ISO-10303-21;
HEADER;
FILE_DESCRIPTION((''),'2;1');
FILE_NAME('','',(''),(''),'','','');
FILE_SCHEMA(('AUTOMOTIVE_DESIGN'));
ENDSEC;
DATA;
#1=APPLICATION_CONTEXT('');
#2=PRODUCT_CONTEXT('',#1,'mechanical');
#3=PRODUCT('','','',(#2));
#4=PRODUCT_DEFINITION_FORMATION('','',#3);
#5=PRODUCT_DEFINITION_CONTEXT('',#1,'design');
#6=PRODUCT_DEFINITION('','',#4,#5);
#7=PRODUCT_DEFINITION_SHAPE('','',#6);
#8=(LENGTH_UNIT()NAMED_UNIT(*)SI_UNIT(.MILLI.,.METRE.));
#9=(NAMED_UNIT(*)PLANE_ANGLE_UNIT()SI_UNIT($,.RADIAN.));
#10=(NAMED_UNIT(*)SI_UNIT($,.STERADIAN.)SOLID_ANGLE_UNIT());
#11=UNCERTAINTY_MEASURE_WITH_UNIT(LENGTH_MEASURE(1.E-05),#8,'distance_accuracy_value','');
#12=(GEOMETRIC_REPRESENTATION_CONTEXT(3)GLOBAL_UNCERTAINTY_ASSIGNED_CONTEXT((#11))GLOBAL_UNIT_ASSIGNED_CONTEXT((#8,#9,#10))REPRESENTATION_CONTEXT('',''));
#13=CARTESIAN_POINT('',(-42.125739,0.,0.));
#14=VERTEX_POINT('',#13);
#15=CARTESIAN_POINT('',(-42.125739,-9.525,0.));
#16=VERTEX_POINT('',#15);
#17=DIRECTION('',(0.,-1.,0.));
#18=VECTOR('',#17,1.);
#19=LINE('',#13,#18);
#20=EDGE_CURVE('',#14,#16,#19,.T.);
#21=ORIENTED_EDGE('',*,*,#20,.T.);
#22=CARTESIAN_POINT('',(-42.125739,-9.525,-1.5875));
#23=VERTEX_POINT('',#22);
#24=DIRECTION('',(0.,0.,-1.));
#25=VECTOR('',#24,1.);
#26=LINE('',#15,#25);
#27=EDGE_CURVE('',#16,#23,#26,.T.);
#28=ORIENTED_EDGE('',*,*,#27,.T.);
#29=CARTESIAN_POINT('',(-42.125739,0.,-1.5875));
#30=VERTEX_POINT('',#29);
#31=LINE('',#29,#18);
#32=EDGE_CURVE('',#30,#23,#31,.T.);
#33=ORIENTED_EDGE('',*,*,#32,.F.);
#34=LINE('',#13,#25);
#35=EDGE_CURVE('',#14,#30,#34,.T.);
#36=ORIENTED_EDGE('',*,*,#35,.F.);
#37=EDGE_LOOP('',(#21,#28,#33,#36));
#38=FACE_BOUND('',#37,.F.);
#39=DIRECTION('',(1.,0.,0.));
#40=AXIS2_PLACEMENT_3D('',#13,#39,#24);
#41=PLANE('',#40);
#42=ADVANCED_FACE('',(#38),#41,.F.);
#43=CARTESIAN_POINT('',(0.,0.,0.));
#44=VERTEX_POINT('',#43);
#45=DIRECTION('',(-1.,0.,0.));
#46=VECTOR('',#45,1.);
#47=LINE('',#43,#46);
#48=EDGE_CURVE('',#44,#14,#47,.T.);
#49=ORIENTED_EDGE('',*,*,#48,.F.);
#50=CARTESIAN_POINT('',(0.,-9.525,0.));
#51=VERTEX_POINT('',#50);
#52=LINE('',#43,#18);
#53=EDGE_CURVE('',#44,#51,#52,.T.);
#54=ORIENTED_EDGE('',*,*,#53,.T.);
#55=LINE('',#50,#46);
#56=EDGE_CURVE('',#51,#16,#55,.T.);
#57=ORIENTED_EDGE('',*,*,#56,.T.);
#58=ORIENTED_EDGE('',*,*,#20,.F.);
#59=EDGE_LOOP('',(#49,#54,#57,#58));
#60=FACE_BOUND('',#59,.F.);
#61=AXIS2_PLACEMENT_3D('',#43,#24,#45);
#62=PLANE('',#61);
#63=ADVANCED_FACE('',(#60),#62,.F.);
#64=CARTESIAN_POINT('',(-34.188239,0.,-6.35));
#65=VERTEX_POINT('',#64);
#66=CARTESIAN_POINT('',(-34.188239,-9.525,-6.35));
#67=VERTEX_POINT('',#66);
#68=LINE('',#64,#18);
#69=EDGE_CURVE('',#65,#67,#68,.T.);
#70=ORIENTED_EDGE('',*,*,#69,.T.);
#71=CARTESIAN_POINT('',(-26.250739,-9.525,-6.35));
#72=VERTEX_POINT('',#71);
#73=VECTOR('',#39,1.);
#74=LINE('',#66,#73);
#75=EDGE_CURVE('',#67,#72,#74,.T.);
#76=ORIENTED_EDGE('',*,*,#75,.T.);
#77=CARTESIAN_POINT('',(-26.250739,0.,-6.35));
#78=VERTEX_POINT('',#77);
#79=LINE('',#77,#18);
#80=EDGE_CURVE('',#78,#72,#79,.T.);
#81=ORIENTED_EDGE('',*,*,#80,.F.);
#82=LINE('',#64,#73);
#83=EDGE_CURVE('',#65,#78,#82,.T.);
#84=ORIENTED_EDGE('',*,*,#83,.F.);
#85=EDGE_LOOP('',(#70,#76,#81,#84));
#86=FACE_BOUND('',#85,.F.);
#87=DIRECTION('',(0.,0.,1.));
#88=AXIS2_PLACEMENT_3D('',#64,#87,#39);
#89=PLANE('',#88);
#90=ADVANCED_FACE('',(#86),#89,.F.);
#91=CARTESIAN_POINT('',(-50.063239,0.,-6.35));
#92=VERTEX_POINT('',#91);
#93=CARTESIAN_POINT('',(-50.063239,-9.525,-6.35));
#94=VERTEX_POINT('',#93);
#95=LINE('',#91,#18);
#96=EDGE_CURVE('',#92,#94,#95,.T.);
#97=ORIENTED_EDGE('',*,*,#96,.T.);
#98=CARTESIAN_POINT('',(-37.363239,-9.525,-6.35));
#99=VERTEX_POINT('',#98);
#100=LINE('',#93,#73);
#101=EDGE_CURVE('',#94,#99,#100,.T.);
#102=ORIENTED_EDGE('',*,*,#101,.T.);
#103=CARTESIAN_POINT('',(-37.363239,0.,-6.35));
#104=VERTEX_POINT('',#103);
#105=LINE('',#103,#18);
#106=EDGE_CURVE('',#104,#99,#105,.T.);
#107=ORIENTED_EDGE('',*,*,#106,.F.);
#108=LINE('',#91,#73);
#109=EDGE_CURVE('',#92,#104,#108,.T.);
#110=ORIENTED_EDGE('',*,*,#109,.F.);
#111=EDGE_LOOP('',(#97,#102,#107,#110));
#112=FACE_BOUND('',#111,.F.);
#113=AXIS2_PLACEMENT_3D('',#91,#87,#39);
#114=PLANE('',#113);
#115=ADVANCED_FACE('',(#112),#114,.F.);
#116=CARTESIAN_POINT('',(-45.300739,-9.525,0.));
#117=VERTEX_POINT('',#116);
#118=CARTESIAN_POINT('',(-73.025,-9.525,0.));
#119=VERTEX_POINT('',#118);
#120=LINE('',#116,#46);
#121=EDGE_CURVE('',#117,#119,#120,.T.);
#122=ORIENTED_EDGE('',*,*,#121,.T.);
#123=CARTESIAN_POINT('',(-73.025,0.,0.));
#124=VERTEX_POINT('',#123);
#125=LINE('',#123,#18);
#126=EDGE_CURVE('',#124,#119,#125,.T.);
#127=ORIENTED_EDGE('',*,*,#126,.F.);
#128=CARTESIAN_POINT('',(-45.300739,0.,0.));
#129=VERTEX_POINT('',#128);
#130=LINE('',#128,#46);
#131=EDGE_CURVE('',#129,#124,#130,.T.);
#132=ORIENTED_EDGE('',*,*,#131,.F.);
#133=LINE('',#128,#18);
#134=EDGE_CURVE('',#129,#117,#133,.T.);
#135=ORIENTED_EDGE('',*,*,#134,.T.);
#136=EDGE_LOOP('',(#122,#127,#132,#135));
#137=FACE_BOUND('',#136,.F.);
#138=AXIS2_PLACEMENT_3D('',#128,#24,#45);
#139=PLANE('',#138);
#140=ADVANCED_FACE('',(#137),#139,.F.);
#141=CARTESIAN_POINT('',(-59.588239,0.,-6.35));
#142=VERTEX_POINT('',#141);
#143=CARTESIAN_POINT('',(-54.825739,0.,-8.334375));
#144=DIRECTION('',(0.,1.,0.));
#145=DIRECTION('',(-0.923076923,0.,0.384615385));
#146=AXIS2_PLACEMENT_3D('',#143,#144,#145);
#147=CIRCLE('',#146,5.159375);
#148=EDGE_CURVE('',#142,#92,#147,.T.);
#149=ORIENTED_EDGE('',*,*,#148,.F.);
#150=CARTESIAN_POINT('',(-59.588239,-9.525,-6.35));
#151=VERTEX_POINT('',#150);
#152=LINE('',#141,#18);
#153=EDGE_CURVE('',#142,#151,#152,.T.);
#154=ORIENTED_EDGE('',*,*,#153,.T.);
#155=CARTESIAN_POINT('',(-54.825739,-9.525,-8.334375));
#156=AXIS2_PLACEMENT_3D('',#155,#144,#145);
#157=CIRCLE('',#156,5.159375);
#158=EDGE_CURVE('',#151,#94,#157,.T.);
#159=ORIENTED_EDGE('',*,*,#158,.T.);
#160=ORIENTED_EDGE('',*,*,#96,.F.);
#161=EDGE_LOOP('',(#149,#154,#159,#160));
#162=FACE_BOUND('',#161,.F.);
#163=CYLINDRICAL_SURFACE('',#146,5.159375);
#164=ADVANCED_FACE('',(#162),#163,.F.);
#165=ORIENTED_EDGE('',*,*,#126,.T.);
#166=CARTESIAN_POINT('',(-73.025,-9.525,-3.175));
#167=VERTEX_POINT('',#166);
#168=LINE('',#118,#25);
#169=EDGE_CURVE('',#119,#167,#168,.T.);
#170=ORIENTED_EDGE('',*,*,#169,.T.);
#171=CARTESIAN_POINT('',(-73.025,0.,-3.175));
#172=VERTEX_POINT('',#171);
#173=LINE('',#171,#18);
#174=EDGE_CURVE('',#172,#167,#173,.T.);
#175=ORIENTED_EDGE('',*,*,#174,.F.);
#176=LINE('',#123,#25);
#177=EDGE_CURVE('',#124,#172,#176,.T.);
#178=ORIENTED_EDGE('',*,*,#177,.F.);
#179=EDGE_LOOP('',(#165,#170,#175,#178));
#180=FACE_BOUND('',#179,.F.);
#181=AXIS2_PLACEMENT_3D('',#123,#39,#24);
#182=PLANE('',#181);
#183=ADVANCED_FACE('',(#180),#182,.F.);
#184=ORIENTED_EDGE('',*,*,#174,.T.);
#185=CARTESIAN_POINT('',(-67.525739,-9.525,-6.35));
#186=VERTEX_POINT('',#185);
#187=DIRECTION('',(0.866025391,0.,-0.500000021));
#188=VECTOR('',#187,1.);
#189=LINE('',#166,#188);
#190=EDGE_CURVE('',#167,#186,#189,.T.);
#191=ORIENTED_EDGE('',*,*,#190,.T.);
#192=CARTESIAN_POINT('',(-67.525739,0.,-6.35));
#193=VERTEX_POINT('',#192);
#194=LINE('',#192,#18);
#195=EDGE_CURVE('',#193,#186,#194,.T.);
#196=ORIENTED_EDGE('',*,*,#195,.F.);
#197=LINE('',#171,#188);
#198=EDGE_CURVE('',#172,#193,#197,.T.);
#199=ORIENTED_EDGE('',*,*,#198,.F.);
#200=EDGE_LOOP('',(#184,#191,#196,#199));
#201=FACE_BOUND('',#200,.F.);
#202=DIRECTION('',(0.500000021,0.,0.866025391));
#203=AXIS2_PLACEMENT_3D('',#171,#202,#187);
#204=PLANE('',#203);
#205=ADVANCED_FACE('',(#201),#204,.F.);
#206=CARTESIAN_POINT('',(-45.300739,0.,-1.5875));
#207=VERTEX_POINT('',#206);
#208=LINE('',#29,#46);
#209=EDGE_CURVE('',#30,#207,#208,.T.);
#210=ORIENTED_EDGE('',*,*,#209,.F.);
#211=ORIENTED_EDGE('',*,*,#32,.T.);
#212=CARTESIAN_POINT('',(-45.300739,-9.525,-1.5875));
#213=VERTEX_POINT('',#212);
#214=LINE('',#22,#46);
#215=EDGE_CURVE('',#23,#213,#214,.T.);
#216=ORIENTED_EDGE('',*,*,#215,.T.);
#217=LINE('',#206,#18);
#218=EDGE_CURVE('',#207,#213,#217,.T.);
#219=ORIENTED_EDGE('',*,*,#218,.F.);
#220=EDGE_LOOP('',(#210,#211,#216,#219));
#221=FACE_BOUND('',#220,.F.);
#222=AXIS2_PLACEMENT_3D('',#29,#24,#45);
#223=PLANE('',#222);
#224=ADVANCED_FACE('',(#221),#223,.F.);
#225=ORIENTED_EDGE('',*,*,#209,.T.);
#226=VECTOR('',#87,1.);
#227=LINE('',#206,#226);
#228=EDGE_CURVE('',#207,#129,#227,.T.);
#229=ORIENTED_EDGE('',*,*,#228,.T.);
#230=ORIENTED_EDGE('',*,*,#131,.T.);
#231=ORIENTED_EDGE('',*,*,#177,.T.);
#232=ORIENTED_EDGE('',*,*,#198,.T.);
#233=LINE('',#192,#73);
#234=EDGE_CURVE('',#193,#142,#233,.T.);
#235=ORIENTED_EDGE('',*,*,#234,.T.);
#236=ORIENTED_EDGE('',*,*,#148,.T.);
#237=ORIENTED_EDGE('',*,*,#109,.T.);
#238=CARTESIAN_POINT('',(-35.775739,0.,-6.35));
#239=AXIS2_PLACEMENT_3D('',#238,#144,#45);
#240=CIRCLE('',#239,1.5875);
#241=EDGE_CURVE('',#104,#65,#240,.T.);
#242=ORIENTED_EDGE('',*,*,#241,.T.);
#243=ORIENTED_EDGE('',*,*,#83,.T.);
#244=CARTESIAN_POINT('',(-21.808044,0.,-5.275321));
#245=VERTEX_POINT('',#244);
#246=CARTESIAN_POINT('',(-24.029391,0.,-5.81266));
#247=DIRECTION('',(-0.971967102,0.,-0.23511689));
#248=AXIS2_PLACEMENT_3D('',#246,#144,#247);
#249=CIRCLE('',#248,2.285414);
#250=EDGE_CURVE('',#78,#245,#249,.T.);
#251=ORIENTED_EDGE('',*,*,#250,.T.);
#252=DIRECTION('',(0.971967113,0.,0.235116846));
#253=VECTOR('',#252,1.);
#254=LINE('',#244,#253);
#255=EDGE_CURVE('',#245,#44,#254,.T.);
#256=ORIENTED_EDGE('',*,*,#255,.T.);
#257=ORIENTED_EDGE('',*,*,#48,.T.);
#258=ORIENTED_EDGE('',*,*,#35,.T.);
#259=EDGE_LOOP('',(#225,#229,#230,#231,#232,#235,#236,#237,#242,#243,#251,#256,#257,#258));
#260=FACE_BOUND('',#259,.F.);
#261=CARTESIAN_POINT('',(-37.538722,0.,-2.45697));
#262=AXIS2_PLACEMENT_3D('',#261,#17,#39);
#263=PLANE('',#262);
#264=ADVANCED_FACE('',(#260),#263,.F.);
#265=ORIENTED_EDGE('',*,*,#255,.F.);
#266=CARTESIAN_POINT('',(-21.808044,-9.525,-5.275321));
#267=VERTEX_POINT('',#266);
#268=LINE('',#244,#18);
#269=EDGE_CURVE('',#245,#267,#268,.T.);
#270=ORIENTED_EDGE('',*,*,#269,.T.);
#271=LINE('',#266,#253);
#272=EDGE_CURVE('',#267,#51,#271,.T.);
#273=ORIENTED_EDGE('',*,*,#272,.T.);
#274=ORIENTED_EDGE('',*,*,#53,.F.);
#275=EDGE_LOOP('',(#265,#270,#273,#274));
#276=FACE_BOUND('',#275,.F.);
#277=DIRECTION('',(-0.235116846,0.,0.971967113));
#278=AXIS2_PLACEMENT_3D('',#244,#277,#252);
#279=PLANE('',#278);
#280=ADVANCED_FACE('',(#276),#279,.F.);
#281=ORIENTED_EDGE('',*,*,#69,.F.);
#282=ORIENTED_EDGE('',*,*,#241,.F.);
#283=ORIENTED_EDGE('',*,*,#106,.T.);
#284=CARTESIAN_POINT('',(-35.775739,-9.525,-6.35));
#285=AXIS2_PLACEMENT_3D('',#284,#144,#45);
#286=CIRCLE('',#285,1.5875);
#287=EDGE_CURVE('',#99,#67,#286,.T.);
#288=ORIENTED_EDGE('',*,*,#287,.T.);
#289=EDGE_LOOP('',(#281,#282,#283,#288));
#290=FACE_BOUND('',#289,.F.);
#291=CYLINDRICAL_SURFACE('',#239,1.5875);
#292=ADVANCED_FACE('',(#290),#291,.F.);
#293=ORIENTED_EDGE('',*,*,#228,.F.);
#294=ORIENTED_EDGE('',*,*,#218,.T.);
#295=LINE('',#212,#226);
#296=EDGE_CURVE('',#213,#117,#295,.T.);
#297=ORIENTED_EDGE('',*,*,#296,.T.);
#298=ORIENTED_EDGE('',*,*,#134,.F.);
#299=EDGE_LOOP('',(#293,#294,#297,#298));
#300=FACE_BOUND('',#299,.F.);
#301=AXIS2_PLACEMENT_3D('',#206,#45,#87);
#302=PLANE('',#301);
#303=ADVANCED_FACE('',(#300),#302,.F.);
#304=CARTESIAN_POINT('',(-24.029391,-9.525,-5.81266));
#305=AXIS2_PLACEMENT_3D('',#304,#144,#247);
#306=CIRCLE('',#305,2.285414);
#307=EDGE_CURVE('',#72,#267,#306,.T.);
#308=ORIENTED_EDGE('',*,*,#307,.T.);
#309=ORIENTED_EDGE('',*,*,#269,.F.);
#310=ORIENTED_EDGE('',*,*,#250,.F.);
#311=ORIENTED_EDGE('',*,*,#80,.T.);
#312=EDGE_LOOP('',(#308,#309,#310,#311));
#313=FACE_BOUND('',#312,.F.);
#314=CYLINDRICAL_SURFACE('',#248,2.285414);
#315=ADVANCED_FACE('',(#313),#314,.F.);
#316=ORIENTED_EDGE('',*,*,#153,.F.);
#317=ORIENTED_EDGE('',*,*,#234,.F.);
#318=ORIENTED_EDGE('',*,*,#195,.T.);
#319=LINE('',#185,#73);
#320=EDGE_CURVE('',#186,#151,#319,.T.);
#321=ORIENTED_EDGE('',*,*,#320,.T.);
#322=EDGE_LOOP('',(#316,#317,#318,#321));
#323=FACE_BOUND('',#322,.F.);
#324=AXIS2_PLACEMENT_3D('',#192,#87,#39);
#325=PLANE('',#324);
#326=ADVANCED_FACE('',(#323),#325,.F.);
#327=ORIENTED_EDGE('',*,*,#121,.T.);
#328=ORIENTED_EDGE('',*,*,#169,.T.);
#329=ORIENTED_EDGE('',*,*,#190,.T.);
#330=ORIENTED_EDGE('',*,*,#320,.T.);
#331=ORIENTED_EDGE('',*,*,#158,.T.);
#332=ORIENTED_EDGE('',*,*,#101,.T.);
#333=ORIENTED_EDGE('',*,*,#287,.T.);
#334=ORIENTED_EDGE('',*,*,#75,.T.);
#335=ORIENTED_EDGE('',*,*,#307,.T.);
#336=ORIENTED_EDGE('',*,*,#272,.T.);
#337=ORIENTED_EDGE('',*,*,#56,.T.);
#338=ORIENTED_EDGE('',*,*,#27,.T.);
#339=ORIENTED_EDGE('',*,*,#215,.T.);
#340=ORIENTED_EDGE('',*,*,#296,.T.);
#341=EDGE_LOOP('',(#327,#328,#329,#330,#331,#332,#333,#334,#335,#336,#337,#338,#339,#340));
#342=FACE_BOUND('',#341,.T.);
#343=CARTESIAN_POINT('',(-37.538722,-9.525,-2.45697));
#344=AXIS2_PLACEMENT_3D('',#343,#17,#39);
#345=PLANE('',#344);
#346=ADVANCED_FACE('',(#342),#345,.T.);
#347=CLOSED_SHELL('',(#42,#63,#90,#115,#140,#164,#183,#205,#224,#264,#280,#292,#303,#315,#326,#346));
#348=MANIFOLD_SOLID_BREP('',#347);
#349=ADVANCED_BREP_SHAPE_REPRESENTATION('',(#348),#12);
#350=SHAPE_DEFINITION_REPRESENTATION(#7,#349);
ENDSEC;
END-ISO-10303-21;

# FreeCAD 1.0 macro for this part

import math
import FreeCAD as App
import Part
import Sketcher
Q = App.Units.Quantity

doc = App.newDocument("Part")
body = doc.addObject("PartDesign::Body", "Body")

# Sketch on XZ plane
sketch1 = body.newObject("Sketcher::SketchObject", "Sketch")
sketch1.AttachmentSupport = (doc.getObject("XZ_Plane"), [""])
sketch1.MapMode = "FlatFace"
sketch1.addGeometry([
    Part.LineSegment(App.Vector(-21.8, -5.3, 0), App.Vector(0, 0, 0)),  # 0
    Part.LineSegment(App.Vector(0, 0, 0), App.Vector(-42.1, 0, 0)),  # 1
    Part.LineSegment(App.Vector(-42.1, 0, 0), App.Vector(-42.1, -1.6, 0)),  # 2
    Part.LineSegment(App.Vector(-42.1, -1.6, 0), App.Vector(-45.3, -1.6, 0)),  # 3
    Part.LineSegment(App.Vector(-45.3, -1.6, 0), App.Vector(-45.3, 0, 0)),  # 4
    Part.LineSegment(App.Vector(-45.3, 0, 0), App.Vector(-73, 0, 0)),  # 5
    Part.LineSegment(App.Vector(-73, 0, 0), App.Vector(-73, -3.2, 0)),  # 6
    Part.LineSegment(App.Vector(-73, -3.2, 0), App.Vector(-67.5, -6.3, 0)),  # 7
    Part.LineSegment(App.Vector(-67.5, -6.3, 0), App.Vector(-59.6, -6.3, 0)),  # 8
    Part.ArcOfCircle(Part.Circle(App.Vector(-54.8, -8.3, 0), App.Vector(0, 0, 1), 5.2), math.radians(23), math.radians(157)),  # 9
    Part.LineSegment(App.Vector(-50.1, -6.3, 0), App.Vector(-37.4, -6.3, 0)),  # 10
    Part.ArcOfCircle(Part.Circle(App.Vector(-35.8, -6.3, 0), App.Vector(0, 0, 1), 1.6), math.radians(0), math.radians(180)),  # 11
    Part.LineSegment(App.Vector(-34.2, -6.3, 0), App.Vector(-26.3, -6.3, 0)),  # 12
    Part.ArcOfCircle(Part.Circle(App.Vector(-24, -5.8, 0), App.Vector(0, 0, 1), 2.3), math.radians(14), math.radians(194)),  # 13
], False)
sketch1.addConstraint([
    Sketcher.Constraint("Coincident", 0, 2, 1, 1),
    Sketcher.Constraint("Coincident", 1, 2, 2, 1),
    Sketcher.Constraint("Coincident", 2, 2, 3, 1),
    Sketcher.Constraint("Coincident", 3, 2, 4, 1),
    Sketcher.Constraint("Coincident", 4, 2, 5, 1),
    Sketcher.Constraint("Coincident", 5, 2, 6, 1),
    Sketcher.Constraint("Coincident", 6, 2, 7, 1),
    Sketcher.Constraint("Coincident", 7, 2, 8, 1),
    Sketcher.Constraint("Coincident", 8, 2, 9, 2),
    Sketcher.Constraint("Coincident", 9, 1, 10, 1),
    Sketcher.Constraint("Coincident", 10, 2, 11, 2),
    Sketcher.Constraint("Coincident", 11, 1, 12, 1),
    Sketcher.Constraint("Coincident", 12, 2, 13, 2),
    Sketcher.Constraint("Coincident", 13, 1, 0, 1),
    Sketcher.Constraint("Horizontal", 1),
    Sketcher.Constraint("Vertical", 2),
    Sketcher.Constraint("Horizontal", 3),
    Sketcher.Constraint("Vertical", 4),
    Sketcher.Constraint("Horizontal", 5),
    Sketcher.Constraint("Vertical", 6),
    Sketcher.Constraint("Horizontal", 8),
    Sketcher.Constraint("Horizontal", 10),
    Sketcher.Constraint("Horizontal", 12),
    Sketcher.Constraint("Coincident", 0, 2, -1, 1),
    Sketcher.Constraint("PointOnObject", 4, 2, -1),
    Sketcher.Constraint("Horizontal", 11, 3, 7, 2),
    Sketcher.Constraint("Horizontal", 8, 2, 9, 1),
    Sketcher.Constraint("Horizontal", 10, 2, 11, 1),
    Sketcher.Constraint("Equal", 8, 12),
    Sketcher.Constraint("Equal", 3, 6),
    Sketcher.Constraint("DistanceX", 10, 1, 10, 2, Q("0.5 in")),
    Sketcher.Constraint("Angle", 7, Q("-30.000001 deg")),
    Sketcher.Constraint("Radius", 9, Q("0.203125 in")),
    Sketcher.Constraint("Radius", 11, Q("0.0625 in")),
    Sketcher.Constraint("DistanceX", 9, 3, 1, 2, Q("0.5 in")),
    Sketcher.Constraint("DistanceX", 7, 2, 9, 3, Q("0.5 in")),
    Sketcher.Constraint("Distance", 7, Q("0.25 in")),
    Sketcher.Constraint("DistanceX", 3, 2, 3, 1, Q("0.125 in")),
    Sketcher.Constraint("DistanceX", 8, 1, 8, 2, Q("0.3125 in")),
    Sketcher.Constraint("DistanceY", 2, 2, 2, 1, Q("0.0625 in")),
    Sketcher.Constraint("DistanceX", 5, 2, -1, 1, Q("2.875 in")),
    Sketcher.Constraint("Radius", 13, Q("2.285414 mm")),
    Sketcher.Constraint("DistanceX", 13, 3, -1, 1, Q("24.029391 mm")),
    Sketcher.Constraint("DistanceY", 13, 1, -1, 1, Q("5.275321 mm")),
])
pad1 = body.newObject("PartDesign::Pad", "Pad")
pad1.Profile = sketch1
pad1.Length = Q("0.375 in")

doc.recompute()
